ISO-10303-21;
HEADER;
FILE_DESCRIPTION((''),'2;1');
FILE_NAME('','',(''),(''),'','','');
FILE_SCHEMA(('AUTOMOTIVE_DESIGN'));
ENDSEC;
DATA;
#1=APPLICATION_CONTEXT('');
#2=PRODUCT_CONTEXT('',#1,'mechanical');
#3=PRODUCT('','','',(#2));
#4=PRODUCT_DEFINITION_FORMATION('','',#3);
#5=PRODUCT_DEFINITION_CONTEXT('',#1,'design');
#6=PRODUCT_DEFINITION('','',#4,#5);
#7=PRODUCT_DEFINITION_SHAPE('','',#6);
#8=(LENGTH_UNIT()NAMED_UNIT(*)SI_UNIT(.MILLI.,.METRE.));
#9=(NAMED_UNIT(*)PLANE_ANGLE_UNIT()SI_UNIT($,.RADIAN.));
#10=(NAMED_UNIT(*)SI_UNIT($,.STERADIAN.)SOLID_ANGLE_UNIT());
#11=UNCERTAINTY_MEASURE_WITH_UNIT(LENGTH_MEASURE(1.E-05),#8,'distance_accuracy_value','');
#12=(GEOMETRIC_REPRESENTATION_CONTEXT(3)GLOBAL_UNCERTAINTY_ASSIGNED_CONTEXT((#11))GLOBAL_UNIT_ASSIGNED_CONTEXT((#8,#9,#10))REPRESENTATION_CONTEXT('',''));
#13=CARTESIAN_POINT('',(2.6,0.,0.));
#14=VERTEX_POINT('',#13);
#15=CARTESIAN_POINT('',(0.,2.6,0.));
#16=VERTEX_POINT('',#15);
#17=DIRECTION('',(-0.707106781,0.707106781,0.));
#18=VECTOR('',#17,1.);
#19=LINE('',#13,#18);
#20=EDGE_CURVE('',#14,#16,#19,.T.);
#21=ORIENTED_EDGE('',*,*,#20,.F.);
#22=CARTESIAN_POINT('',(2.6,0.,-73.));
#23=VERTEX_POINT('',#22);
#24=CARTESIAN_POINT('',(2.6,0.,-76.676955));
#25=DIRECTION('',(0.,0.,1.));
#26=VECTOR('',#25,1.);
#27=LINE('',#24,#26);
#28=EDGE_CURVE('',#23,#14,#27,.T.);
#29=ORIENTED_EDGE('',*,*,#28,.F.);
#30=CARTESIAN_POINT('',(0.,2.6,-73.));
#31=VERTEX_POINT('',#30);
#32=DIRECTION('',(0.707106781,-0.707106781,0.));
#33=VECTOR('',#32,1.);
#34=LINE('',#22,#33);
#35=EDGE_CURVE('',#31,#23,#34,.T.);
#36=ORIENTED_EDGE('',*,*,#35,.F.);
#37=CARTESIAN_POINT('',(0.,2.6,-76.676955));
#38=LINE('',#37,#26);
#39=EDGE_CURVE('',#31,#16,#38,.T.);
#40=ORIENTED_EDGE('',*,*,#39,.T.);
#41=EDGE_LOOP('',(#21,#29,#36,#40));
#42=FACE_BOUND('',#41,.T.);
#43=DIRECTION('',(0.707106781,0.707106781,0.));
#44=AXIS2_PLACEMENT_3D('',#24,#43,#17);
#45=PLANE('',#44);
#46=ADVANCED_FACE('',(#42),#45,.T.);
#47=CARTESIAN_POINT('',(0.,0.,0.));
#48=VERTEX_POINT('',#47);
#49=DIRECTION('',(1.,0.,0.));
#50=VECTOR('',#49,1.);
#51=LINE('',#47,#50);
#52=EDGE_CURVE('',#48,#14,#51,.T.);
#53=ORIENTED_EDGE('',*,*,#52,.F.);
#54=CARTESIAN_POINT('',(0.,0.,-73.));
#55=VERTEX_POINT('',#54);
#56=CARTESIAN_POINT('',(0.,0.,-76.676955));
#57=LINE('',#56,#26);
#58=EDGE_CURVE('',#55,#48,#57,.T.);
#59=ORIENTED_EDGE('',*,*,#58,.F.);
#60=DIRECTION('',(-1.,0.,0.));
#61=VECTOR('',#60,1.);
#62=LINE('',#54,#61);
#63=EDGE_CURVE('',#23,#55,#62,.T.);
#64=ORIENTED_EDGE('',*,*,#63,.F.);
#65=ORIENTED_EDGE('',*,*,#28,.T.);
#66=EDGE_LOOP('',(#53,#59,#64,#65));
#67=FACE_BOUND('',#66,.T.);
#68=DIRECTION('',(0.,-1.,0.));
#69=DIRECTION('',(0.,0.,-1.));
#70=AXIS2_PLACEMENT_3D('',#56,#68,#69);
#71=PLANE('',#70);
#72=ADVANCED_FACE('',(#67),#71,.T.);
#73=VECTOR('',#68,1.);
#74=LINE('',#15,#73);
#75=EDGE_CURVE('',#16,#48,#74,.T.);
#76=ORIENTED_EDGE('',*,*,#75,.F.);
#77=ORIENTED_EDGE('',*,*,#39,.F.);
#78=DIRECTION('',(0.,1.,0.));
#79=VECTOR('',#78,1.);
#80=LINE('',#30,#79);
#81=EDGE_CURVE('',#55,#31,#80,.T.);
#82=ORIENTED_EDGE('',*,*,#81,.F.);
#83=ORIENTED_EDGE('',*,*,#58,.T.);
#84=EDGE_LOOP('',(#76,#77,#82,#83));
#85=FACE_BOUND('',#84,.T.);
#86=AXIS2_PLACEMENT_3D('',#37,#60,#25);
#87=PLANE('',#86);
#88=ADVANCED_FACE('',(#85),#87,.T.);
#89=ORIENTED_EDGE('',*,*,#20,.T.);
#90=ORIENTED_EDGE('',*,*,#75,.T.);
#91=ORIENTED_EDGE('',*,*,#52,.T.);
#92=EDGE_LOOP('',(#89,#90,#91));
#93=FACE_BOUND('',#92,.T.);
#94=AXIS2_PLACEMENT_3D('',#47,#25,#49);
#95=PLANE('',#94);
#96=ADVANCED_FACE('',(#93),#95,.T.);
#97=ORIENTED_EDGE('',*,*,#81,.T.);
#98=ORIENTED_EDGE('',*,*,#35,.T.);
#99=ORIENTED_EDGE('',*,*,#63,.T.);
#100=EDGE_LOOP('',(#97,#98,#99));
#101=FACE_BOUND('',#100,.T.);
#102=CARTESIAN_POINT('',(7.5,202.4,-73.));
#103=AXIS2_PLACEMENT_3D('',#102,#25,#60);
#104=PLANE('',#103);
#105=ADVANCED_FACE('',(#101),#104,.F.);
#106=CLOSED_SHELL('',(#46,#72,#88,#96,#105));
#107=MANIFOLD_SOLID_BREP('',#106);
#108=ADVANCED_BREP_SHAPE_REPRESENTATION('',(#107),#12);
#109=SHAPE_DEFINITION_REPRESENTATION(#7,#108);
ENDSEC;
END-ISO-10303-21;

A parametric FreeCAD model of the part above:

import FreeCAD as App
import Part
import Sketcher
Q = App.Units.Quantity


def add_polygon(sketch, points):
    """Adds a closed chain of lines whose ends are joined by coincident constraints."""
    first, n = sketch.GeometryCount, len(points)
    for a, b in zip(points, points[1:] + points[:1]):
        sketch.addGeometry(Part.LineSegment(App.Vector(*a, 0), App.Vector(*b, 0)), False)
    for i in range(n):
        sketch.addConstraint(Sketcher.Constraint("Coincident", first + i, 2, first + (i + 1) % n, 1))

doc = App.newDocument("Part")
body = doc.addObject("PartDesign::Body", "Body")

# Sketch on XY plane
sketch1 = body.newObject("Sketcher::SketchObject", "Sketch")
sketch1.AttachmentSupport = (doc.getObject("XY_Plane"), [""])
sketch1.MapMode = "FlatFace"
add_polygon(sketch1, [(0, 0), (2.6, 0), (0, 2.6)])  # lines 0-2
sketch1.addConstraint([
    Sketcher.Constraint("Horizontal", 0),
    Sketcher.Constraint("Vertical", 2),
    Sketcher.Constraint("Coincident", 2, 2, -1, 1),
    Sketcher.Constraint("Equal", 0, 2),
    Sketcher.Constraint("DistanceX", 0, 1, 0, 2, Q("2.6 mm")),
])
pad1 = body.newObject("PartDesign::Pad", "Pad")
pad1.Profile = sketch1
pad1.Length = 73
pad1.Reversed = True

doc.recompute()
